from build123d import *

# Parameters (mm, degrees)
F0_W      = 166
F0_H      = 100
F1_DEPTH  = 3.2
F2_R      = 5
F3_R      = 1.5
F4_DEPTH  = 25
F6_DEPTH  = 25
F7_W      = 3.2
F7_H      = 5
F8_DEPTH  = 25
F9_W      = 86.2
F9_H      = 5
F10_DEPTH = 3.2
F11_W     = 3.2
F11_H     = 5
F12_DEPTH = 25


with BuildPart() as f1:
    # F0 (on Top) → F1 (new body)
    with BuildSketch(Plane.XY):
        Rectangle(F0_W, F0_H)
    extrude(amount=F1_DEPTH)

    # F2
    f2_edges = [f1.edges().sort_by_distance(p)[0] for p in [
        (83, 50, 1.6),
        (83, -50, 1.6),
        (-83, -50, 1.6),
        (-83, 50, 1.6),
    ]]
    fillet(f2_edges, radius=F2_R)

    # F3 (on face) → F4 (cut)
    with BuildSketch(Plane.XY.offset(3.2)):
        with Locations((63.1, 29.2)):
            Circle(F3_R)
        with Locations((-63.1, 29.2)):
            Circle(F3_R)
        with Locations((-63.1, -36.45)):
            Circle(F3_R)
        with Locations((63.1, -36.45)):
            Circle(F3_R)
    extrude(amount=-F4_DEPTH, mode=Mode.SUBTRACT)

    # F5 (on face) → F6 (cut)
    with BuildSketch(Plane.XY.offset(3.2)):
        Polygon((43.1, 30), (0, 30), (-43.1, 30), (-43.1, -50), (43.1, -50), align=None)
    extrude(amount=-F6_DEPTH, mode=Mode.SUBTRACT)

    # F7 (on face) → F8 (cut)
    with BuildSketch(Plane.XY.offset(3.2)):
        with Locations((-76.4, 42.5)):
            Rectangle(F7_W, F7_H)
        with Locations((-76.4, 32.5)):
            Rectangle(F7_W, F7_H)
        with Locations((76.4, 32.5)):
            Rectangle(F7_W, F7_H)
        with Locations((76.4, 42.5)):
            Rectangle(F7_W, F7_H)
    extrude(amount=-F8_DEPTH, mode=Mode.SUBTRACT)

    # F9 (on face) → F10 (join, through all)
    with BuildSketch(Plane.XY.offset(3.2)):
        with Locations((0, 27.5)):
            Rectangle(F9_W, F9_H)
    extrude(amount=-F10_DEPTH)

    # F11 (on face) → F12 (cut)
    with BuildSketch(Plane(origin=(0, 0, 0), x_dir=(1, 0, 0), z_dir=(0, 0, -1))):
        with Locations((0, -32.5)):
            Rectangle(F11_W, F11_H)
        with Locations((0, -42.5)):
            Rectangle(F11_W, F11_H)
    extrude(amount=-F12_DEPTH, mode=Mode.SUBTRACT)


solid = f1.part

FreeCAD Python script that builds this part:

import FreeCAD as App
import Part
import Sketcher
from FreeCAD import Vector


def edges_at(feature, points):
    """Names of the edges that pass closest to the given points."""
    edges = feature.Shape.Edges
    near = lambda p: min(range(len(edges)), key=lambda i: edges[i].distToShape(Part.Vertex(*p))[0])
    return sorted({f"Edge{near(p) + 1}" for p in points})


def add_polygon(sketch, points):
    """Adds a closed chain of lines whose ends are joined by coincident constraints."""
    first, n = sketch.GeometryCount, len(points)
    for a, b in zip(points, points[1:] + points[:1]):
        sketch.addGeometry(Part.LineSegment(App.Vector(*a, 0), App.Vector(*b, 0)), False)
    for i in range(n):
        sketch.addConstraint(Sketcher.Constraint("Coincident", first + i, 2, first + (i + 1) % n, 1))

doc = App.newDocument("Part")
body = doc.addObject("PartDesign::Body", "Body")

sketch1 = doc.addObject("Sketcher::SketchObject", "Sketch")
body.addObject(sketch1)
sketch1.AttachmentSupport = (doc.XY_Plane, [""])
sketch1.MapMode = "FlatFace"
add_polygon(sketch1, [(-83, 50), (-83, -50), (83, -50), (83, 50)])
sketch1.addConstraint([
    Sketcher.Constraint("Vertical", 0),
    Sketcher.Constraint("Horizontal", 1),
    Sketcher.Constraint("Vertical", 2),
    Sketcher.Constraint("Horizontal", 3),
    Sketcher.Constraint("Symmetric", 0, 2, 2, 2, -1, 1),
    Sketcher.Constraint("DistanceX", 1, 1, 1, 2, 166.0),
    Sketcher.Constraint("DistanceY", 0, 2, 0, 1, 100.0),
])
pad1 = doc.addObject("PartDesign::Pad", "Pad")
body.addObject(pad1)
pad1.Profile = sketch1
pad1.Length = 3.2
doc.recompute()

fillet = doc.addObject("PartDesign::Fillet", "Fillet")
body.addObject(fillet)
fillet.Base = (pad1, edges_at(pad1, [
    (83, 50, 1.6),
    (83, -50, 1.6),
    (-83, -50, 1.6),
    (-83, 50, 1.6),
]))
fillet.Radius = 5

sketch2 = doc.addObject("Sketcher::SketchObject", "Sketch001")
body.addObject(sketch2)
sketch2.AttachmentSupport = (doc.XY_Plane, [""])
sketch2.MapMode = "FlatFace"
sketch2.AttachmentOffset = App.Placement(Vector(0, 0, 3.2), App.Rotation())
sketch2.addGeometry([
    Part.Circle(Vector(63.1, 29.2, 0), Vector(0, 0, 1), 1.5),
    Part.Circle(Vector(-63.1, 29.2, 0), Vector(0, 0, 1), 1.5),
    Part.Circle(Vector(-63.1, -36.45, 0), Vector(0, 0, 1), 1.5),
    Part.Circle(Vector(63.1, -36.45, 0), Vector(0, 0, 1), 1.5),
], False)
sketch2.addConstraint([
    Sketcher.Constraint("Equal", 0, 1),
    Sketcher.Constraint("Equal", 1, 2),
    Sketcher.Constraint("Equal", 2, 3),
    Sketcher.Constraint("Symmetric", 0, 3, 1, 3, -2),
    Sketcher.Constraint("Symmetric", 2, 3, 3, 3, -2),
    Sketcher.Constraint("Vertical", 1, 3, 2, 3),
    Sketcher.Constraint("Diameter", 0, 3.0),
    Sketcher.Constraint("DistanceX", -1, 1, 0, 3, 63.1),
    Sketcher.Constraint("DistanceY", -1, 1, 0, 3, 29.2),
    Sketcher.Constraint("DistanceY", 2, 3, -1, 1, 36.45),
])
pocket1 = doc.addObject("PartDesign::Pocket", "Pocket")
body.addObject(pocket1)
pocket1.Profile = sketch2
pocket1.Length = 25

sketch3 = doc.addObject("Sketcher::SketchObject", "Sketch002")
body.addObject(sketch3)
sketch3.AttachmentSupport = (doc.XY_Plane, [""])
sketch3.MapMode = "FlatFace"
sketch3.AttachmentOffset = App.Placement(Vector(0, 0, 3.2), App.Rotation())
add_polygon(sketch3, [(43.1, 30), (-43.1, 30), (-43.1, -50), (43.1, -50)])
sketch3.addConstraint([
    Sketcher.Constraint("Horizontal", 0),
    Sketcher.Constraint("Vertical", 1),
    Sketcher.Constraint("Horizontal", 2),
    Sketcher.Constraint("Vertical", 3),
    Sketcher.Constraint("DistanceY", 1, 2, 1, 1, 80.0),
    Sketcher.Constraint("DistanceX", 0, 2, 0, 1, 86.2),
    Sketcher.Constraint("DistanceY", -1, 1, 0, 2, 30.0),
    Sketcher.Constraint("DistanceX", 0, 2, -1, 1, 43.1),
])
pocket2 = doc.addObject("PartDesign::Pocket", "Pocket001")
body.addObject(pocket2)
pocket2.Profile = sketch3
pocket2.Length = 25

sketch4 = doc.addObject("Sketcher::SketchObject", "Sketch003")
body.addObject(sketch4)
sketch4.AttachmentSupport = (doc.XY_Plane, [""])
sketch4.MapMode = "FlatFace"
sketch4.AttachmentOffset = App.Placement(Vector(0, 0, 3.2), App.Rotation())
add_polygon(sketch4, [(-78, 45), (-78, 40), (-74.8, 40), (-74.8, 45)])
add_polygon(sketch4, [(-78, 35), (-78, 30), (-74.8, 30), (-74.8, 35)])
add_polygon(sketch4, [(74.8, 35), (74.8, 30), (78, 30), (78, 35)])
add_polygon(sketch4, [(74.8, 45), (74.8, 40), (78, 40), (78, 45)])
sketch4.addConstraint([
    Sketcher.Constraint("Vertical", 0),
    Sketcher.Constraint("Horizontal", 1),
    Sketcher.Constraint("Vertical", 2),
    Sketcher.Constraint("Horizontal", 3),
    Sketcher.Constraint("Vertical", 4),
    Sketcher.Constraint("Horizontal", 5),
    Sketcher.Constraint("Vertical", 6),
    Sketcher.Constraint("Horizontal", 7),
    Sketcher.Constraint("Vertical", 8),
    Sketcher.Constraint("Horizontal", 9),
    Sketcher.Constraint("Vertical", 10),
    Sketcher.Constraint("Horizontal", 11),
    Sketcher.Constraint("Vertical", 12),
    Sketcher.Constraint("Horizontal", 13),
    Sketcher.Constraint("Vertical", 14),
    Sketcher.Constraint("Horizontal", 15),
    Sketcher.Constraint("Symmetric", 5, 2, 8, 2, -2),
    Sketcher.Constraint("Symmetric", 7, 2, 10, 2, -2),
    Sketcher.Constraint("Symmetric", 1, 2, 12, 2, -2),
    Sketcher.Constraint("Symmetric", 3, 2, 14, 2, -2),
    Sketcher.Constraint("Vertical", 3, 2, 4, 2),
    Sketcher.Constraint("Vertical", 2, 2, 5, 2),
    Sketcher.Constraint("Equal", 2, 4),
    Sketcher.Constraint("DistanceY", 0, 2, 0, 1, 5.0),
    Sketcher.Constraint("DistanceX", 1, 1, 1, 2, 3.2),
    Sketcher.Constraint("DistanceX", 0, 2, -1, 1, 78.0),
    Sketcher.Constraint("DistanceY", -1, 1, 0, 2, 40.0),
    Sketcher.Constraint("DistanceY", -1, 1, 4, 2, 30.0),
])
pocket3 = doc.addObject("PartDesign::Pocket", "Pocket002")
body.addObject(pocket3)
pocket3.Profile = sketch4
pocket3.Length = 25

sketch5 = doc.addObject("Sketcher::SketchObject", "Sketch004")
body.addObject(sketch5)
sketch5.AttachmentSupport = (doc.XY_Plane, [""])
sketch5.MapMode = "FlatFace"
sketch5.AttachmentOffset = App.Placement(Vector(0, 0, 3.2), App.Rotation())
add_polygon(sketch5, [(-43.1, 30), (-43.1, 25), (43.1, 25), (43.1, 30)])
sketch5.addConstraint([
    Sketcher.Constraint("Vertical", 0),
    Sketcher.Constraint("Horizontal", 1),
    Sketcher.Constraint("Vertical", 2),
    Sketcher.Constraint("Horizontal", 3),
    Sketcher.Constraint("DistanceY", 0, 2, 0, 1, 5.0),
    Sketcher.Constraint("DistanceX", 1, 1, 1, 2, 86.2),
    Sketcher.Constraint("DistanceY", -1, 1, 0, 2, 25.0),
    Sketcher.Constraint("DistanceX", 0, 2, -1, 1, 43.1),
])
pad2 = doc.addObject("PartDesign::Pad", "Pad001")
body.addObject(pad2)
pad2.Profile = sketch5
pad2.Length = 3.2
pad2.Reversed = True

sketch6 = doc.addObject("Sketcher::SketchObject", "Sketch005")
body.addObject(sketch6)
sketch6.AttachmentSupport = (doc.XY_Plane, [""])
sketch6.MapMode = "FlatFace"
add_polygon(sketch6, [(-1.6, 30), (-1.6, 35), (1.6, 35), (1.6, 30)])
add_polygon(sketch6, [(-1.6, 40), (-1.6, 45), (1.6, 45), (1.6, 40)])
sketch6.addConstraint([
    Sketcher.Constraint("Vertical", 0),
    Sketcher.Constraint("Horizontal", 1),
    Sketcher.Constraint("Vertical", 2),
    Sketcher.Constraint("Horizontal", 3),
    Sketcher.Constraint("Vertical", 4),
    Sketcher.Constraint("Horizontal", 5),
    Sketcher.Constraint("Vertical", 6),
    Sketcher.Constraint("Horizontal", 7),
    Sketcher.Constraint("Vertical", 3, 2, 4, 2),
    Sketcher.Constraint("Vertical", 2, 2, 5, 2),
    Sketcher.Constraint("Equal", 2, 4),
    Sketcher.Constraint("DistanceY", 0, 1, 0, 2, 5.0),
    Sketcher.Constraint("DistanceX", 1, 1, 1, 2, 3.2),
    Sketcher.Constraint("DistanceY", -1, 1, 0, 2, 35.0),
    Sketcher.Constraint("DistanceY", -1, 1, 4, 2, 45.0),
    Sketcher.Constraint("DistanceX", 0, 2, -1, 1, 1.6),
])
pocket4 = doc.addObject("PartDesign::Pocket", "Pocket003")
body.addObject(pocket4)
pocket4.Profile = sketch6
pocket4.Length = 25
pocket4.Reversed = True

doc.recompute()
